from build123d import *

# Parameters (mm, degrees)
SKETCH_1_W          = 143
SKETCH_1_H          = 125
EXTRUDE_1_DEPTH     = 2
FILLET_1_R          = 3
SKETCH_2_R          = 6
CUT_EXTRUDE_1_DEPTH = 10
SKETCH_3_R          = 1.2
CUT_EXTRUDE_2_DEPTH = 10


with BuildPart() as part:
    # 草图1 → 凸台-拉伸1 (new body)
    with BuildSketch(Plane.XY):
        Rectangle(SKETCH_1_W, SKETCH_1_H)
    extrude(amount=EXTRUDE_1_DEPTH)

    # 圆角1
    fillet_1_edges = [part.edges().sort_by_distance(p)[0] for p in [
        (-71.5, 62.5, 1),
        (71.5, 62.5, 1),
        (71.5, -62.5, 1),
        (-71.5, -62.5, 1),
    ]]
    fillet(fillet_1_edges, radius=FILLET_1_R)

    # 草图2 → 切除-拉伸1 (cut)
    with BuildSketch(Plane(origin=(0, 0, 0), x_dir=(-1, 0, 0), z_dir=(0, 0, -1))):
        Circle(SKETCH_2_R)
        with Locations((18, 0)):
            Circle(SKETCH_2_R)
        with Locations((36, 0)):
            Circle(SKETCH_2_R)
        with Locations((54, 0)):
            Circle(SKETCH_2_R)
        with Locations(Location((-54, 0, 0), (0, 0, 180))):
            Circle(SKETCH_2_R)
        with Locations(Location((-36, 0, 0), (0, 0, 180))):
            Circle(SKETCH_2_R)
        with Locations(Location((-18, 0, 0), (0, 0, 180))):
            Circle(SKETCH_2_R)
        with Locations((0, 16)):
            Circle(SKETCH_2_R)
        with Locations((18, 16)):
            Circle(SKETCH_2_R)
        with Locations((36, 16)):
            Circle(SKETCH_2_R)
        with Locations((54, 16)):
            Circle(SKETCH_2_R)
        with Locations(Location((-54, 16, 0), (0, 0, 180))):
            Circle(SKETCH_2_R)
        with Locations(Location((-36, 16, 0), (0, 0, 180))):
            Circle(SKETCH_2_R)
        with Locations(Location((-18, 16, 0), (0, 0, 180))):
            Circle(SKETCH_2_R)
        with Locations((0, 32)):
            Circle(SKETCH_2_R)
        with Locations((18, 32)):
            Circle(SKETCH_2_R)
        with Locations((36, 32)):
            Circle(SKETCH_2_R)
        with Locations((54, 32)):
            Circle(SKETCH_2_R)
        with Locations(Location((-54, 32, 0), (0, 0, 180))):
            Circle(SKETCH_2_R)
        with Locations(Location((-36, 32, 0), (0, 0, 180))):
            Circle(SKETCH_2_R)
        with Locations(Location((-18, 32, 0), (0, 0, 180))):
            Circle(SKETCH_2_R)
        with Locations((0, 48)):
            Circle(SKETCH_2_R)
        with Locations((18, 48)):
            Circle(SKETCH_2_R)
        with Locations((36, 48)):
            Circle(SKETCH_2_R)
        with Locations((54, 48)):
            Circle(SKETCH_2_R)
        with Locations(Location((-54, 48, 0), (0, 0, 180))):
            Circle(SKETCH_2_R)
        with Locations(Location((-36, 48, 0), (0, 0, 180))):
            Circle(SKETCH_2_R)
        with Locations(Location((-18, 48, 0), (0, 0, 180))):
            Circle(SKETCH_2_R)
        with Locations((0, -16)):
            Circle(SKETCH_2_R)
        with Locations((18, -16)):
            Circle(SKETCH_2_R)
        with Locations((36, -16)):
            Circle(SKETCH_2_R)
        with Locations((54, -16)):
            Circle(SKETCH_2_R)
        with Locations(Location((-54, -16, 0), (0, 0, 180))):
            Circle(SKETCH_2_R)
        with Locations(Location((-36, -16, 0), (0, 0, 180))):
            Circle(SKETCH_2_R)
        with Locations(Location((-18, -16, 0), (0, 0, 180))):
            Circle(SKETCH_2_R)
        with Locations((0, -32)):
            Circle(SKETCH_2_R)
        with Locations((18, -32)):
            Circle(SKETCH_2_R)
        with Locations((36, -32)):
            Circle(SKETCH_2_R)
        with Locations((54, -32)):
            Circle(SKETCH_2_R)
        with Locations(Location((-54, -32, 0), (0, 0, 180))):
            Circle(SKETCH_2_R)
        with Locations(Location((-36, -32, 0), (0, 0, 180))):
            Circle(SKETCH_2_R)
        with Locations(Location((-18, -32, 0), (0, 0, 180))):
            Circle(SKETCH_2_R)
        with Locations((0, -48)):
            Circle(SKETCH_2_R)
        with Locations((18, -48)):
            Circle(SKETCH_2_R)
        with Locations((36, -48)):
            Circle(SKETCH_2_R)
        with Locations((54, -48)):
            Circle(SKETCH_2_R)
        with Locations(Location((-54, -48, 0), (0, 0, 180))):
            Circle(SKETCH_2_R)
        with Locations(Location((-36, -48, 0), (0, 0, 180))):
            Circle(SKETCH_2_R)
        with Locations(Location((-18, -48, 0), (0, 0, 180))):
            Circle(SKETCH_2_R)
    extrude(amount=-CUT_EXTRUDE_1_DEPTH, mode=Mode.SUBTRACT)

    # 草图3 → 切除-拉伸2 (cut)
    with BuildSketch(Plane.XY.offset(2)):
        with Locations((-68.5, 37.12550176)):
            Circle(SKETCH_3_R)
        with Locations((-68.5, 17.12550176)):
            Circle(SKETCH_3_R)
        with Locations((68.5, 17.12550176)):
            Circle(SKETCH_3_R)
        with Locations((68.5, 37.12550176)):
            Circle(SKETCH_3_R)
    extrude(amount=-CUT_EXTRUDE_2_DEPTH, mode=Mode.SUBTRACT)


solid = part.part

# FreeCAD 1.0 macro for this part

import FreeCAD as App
import Part
import Sketcher
from FreeCAD import Vector


def edges_at(feature, points):
    """Names of the edges that pass closest to the given points."""
    edges = feature.Shape.Edges
    near = lambda p: min(range(len(edges)), key=lambda i: edges[i].distToShape(Part.Vertex(*p))[0])
    return sorted({f"Edge{near(p) + 1}" for p in points})


def add_polygon(sketch, points):
    """Adds a closed chain of lines whose ends are joined by coincident constraints."""
    first, n = sketch.GeometryCount, len(points)
    for a, b in zip(points, points[1:] + points[:1]):
        sketch.addGeometry(Part.LineSegment(App.Vector(*a, 0), App.Vector(*b, 0)), False)
    for i in range(n):
        sketch.addConstraint(Sketcher.Constraint("Coincident", first + i, 2, first + (i + 1) % n, 1))

doc = App.newDocument("Part")
body = doc.addObject("PartDesign::Body", "Body")

# Sketch on XY plane
sketch1 = body.newObject("Sketcher::SketchObject", "Sketch")
sketch1.AttachmentSupport = (doc.getObject("XY_Plane"), [""])
sketch1.MapMode = "FlatFace"
add_polygon(sketch1, [(-71.5, 62.5), (-71.5, -62.5), (71.5, -62.5), (71.5, 62.5)])  # lines 0-3
sketch1.addConstraint([
    Sketcher.Constraint("Vertical", 0),
    Sketcher.Constraint("Horizontal", 1),
    Sketcher.Constraint("Vertical", 2),
    Sketcher.Constraint("Horizontal", 3),
    Sketcher.Constraint("Symmetric", 0, 2, 2, 2, -1, 1),
    Sketcher.Constraint("DistanceX", 1, 1, 1, 2, 143.0),
    Sketcher.Constraint("DistanceY", 0, 2, 0, 1, 125.0),
])
pad1 = body.newObject("PartDesign::Pad", "Pad")
pad1.Profile = sketch1
pad1.Length = 2
doc.recompute()

fillet = body.newObject("PartDesign::Fillet", "Fillet")
fillet.Base = (pad1, edges_at(pad1, [
    (-71.5, 62.5, 1),
    (71.5, 62.5, 1),
    (71.5, -62.5, 1),
    (-71.5, -62.5, 1),
]))
fillet.Radius = 3

# Sketch on XY plane
sketch2 = body.newObject("Sketcher::SketchObject", "Sketch001")
sketch2.AttachmentSupport = (doc.getObject("XY_Plane"), [""])
sketch2.MapMode = "FlatFace"
sketch2.addGeometry([
    Part.Circle(Vector(0, 0, 0), Vector(0, 0, 1), 6),  # 0
    Part.Circle(Vector(-18, 0, 0), Vector(0, 0, 1), 6),  # 1
    Part.Circle(Vector(-36, 0, 0), Vector(0, 0, 1), 6),  # 2
    Part.Circle(Vector(-54, 0, 0), Vector(0, 0, 1), 6),  # 3
    Part.Circle(Vector(54, 0, 0), Vector(0, 0, 1), 6),  # 4
    Part.Circle(Vector(36, 0, 0), Vector(0, 0, 1), 6),  # 5
    Part.Circle(Vector(18, 0, 0), Vector(0, 0, 1), 6),  # 6
    Part.Circle(Vector(0, 16, 0), Vector(0, 0, 1), 6),  # 7
    Part.Circle(Vector(-18, 16, 0), Vector(0, 0, 1), 6),  # 8
    Part.Circle(Vector(-36, 16, 0), Vector(0, 0, 1), 6),  # 9
    Part.Circle(Vector(-54, 16, 0), Vector(0, 0, 1), 6),  # 10
    Part.Circle(Vector(54, 16, 0), Vector(0, 0, 1), 6),  # 11
    Part.Circle(Vector(36, 16, 0), Vector(0, 0, 1), 6),  # 12
    Part.Circle(Vector(18, 16, 0), Vector(0, 0, 1), 6),  # 13
    Part.Circle(Vector(0, 32, 0), Vector(0, 0, 1), 6),  # 14
    Part.Circle(Vector(-18, 32, 0), Vector(0, 0, 1), 6),  # 15
    Part.Circle(Vector(-36, 32, 0), Vector(0, 0, 1), 6),  # 16
    Part.Circle(Vector(-54, 32, 0), Vector(0, 0, 1), 6),  # 17
    Part.Circle(Vector(54, 32, 0), Vector(0, 0, 1), 6),  # 18
    Part.Circle(Vector(36, 32, 0), Vector(0, 0, 1), 6),  # 19
    Part.Circle(Vector(18, 32, 0), Vector(0, 0, 1), 6),  # 20
    Part.Circle(Vector(0, 48, 0), Vector(0, 0, 1), 6),  # 21
    Part.Circle(Vector(-18, 48, 0), Vector(0, 0, 1), 6),  # 22
    Part.Circle(Vector(-36, 48, 0), Vector(0, 0, 1), 6),  # 23
    Part.Circle(Vector(-54, 48, 0), Vector(0, 0, 1), 6),  # 24
    Part.Circle(Vector(54, 48, 0), Vector(0, 0, 1), 6),  # 25
    Part.Circle(Vector(36, 48, 0), Vector(0, 0, 1), 6),  # 26
    Part.Circle(Vector(18, 48, 0), Vector(0, 0, 1), 6),  # 27
    Part.Circle(Vector(0, -16, 0), Vector(0, 0, 1), 6),  # 28
    Part.Circle(Vector(-18, -16, 0), Vector(0, 0, 1), 6),  # 29
    Part.Circle(Vector(-36, -16, 0), Vector(0, 0, 1), 6),  # 30
    Part.Circle(Vector(-54, -16, 0), Vector(0, 0, 1), 6),  # 31
    Part.Circle(Vector(54, -16, 0), Vector(0, 0, 1), 6),  # 32
    Part.Circle(Vector(36, -16, 0), Vector(0, 0, 1), 6),  # 33
    Part.Circle(Vector(18, -16, 0), Vector(0, 0, 1), 6),  # 34
    Part.Circle(Vector(0, -32, 0), Vector(0, 0, 1), 6),  # 35
    Part.Circle(Vector(-18, -32, 0), Vector(0, 0, 1), 6),  # 36
    Part.Circle(Vector(-36, -32, 0), Vector(0, 0, 1), 6),  # 37
    Part.Circle(Vector(-54, -32, 0), Vector(0, 0, 1), 6),  # 38
    Part.Circle(Vector(54, -32, 0), Vector(0, 0, 1), 6),  # 39
    Part.Circle(Vector(36, -32, 0), Vector(0, 0, 1), 6),  # 40
    Part.Circle(Vector(18, -32, 0), Vector(0, 0, 1), 6),  # 41
    Part.Circle(Vector(0, -48, 0), Vector(0, 0, 1), 6),  # 42
    Part.Circle(Vector(-18, -48, 0), Vector(0, 0, 1), 6),  # 43
    Part.Circle(Vector(-36, -48, 0), Vector(0, 0, 1), 6),  # 44
    Part.Circle(Vector(-54, -48, 0), Vector(0, 0, 1), 6),  # 45
    Part.Circle(Vector(54, -48, 0), Vector(0, 0, 1), 6),  # 46
    Part.Circle(Vector(36, -48, 0), Vector(0, 0, 1), 6),  # 47
    Part.Circle(Vector(18, -48, 0), Vector(0, 0, 1), 6),  # 48
], False)
sketch2.addConstraint([
    Sketcher.Constraint("Coincident", 0, 3, -1, 1),
    Sketcher.Constraint("Equal", 0, 1),
    Sketcher.Constraint("Equal", 1, 2),
    Sketcher.Constraint("Equal", 2, 3),
    Sketcher.Constraint("Equal", 3, 4),
    Sketcher.Constraint("Equal", 4, 5),
    Sketcher.Constraint("Equal", 5, 6),
    Sketcher.Constraint("Equal", 6, 7),
    Sketcher.Constraint("Equal", 7, 8),
    Sketcher.Constraint("Equal", 8, 9),
    Sketcher.Constraint("Equal", 9, 10),
    Sketcher.Constraint("Equal", 10, 11),
    Sketcher.Constraint("Equal", 11, 12),
    Sketcher.Constraint("Equal", 12, 13),
    Sketcher.Constraint("Equal", 13, 14),
    Sketcher.Constraint("Equal", 14, 15),
    Sketcher.Constraint("Equal", 15, 16),
    Sketcher.Constraint("Equal", 16, 17),
    Sketcher.Constraint("Equal", 17, 18),
    Sketcher.Constraint("Equal", 18, 19),
    Sketcher.Constraint("Equal", 19, 20),
    Sketcher.Constraint("Equal", 20, 21),
    Sketcher.Constraint("Equal", 21, 22),
    Sketcher.Constraint("Equal", 22, 23),
    Sketcher.Constraint("Equal", 23, 24),
    Sketcher.Constraint("Equal", 24, 25),
    Sketcher.Constraint("Equal", 25, 26),
    Sketcher.Constraint("Equal", 26, 27),
    Sketcher.Constraint("Equal", 27, 28),
    Sketcher.Constraint("Equal", 28, 29),
    Sketcher.Constraint("Equal", 29, 30),
    Sketcher.Constraint("Equal", 30, 31),
    Sketcher.Constraint("Equal", 31, 32),
    Sketcher.Constraint("Equal", 32, 33),
    Sketcher.Constraint("Equal", 33, 34),
    Sketcher.Constraint("Equal", 34, 35),
    Sketcher.Constraint("Equal", 35, 36),
    Sketcher.Constraint("Equal", 36, 37),
    Sketcher.Constraint("Equal", 37, 38),
    Sketcher.Constraint("Equal", 38, 39),
    Sketcher.Constraint("Equal", 39, 40),
    Sketcher.Constraint("Equal", 40, 41),
    Sketcher.Constraint("Equal", 41, 42),
    Sketcher.Constraint("Equal", 42, 43),
    Sketcher.Constraint("Equal", 43, 44),
    Sketcher.Constraint("Equal", 44, 45),
    Sketcher.Constraint("Equal", 45, 46),
    Sketcher.Constraint("Equal", 46, 47),
    Sketcher.Constraint("Equal", 47, 48),
    Sketcher.Constraint("Symmetric", 3, 3, 4, 3, -1, 1),
    Sketcher.Constraint("Symmetric", 2, 3, 5, 3, -1, 1),
    Sketcher.Constraint("Symmetric", 1, 3, 6, 3, -1, 1),
    Sketcher.Constraint("Symmetric", 7, 3, 28, 3, -1, 1),
    Sketcher.Constraint("Symmetric", 13, 3, 29, 3, -1, 1),
    Sketcher.Constraint("Symmetric", 12, 3, 30, 3, -1, 1),
    Sketcher.Constraint("Symmetric", 11, 3, 31, 3, -1, 1),
    Sketcher.Constraint("Symmetric", 10, 3, 32, 3, -1, 1),
    Sketcher.Constraint("Symmetric", 9, 3, 33, 3, -1, 1),
    Sketcher.Constraint("Symmetric", 8, 3, 34, 3, -1, 1),
    Sketcher.Constraint("Symmetric", 14, 3, 35, 3, -1, 1),
    Sketcher.Constraint("Symmetric", 20, 3, 36, 3, -1, 1),
    Sketcher.Constraint("Symmetric", 19, 3, 37, 3, -1, 1),
    Sketcher.Constraint("Symmetric", 18, 3, 38, 3, -1, 1),
    Sketcher.Constraint("Symmetric", 17, 3, 39, 3, -1, 1),
    Sketcher.Constraint("Symmetric", 16, 3, 40, 3, -1, 1),
    Sketcher.Constraint("Symmetric", 15, 3, 41, 3, -1, 1),
    Sketcher.Constraint("Symmetric", 21, 3, 42, 3, -1, 1),
    Sketcher.Constraint("Symmetric", 27, 3, 43, 3, -1, 1),
    Sketcher.Constraint("Symmetric", 26, 3, 44, 3, -1, 1),
    Sketcher.Constraint("Symmetric", 25, 3, 45, 3, -1, 1),
    Sketcher.Constraint("Symmetric", 24, 3, 46, 3, -1, 1),
    Sketcher.Constraint("Symmetric", 23, 3, 47, 3, -1, 1),
    Sketcher.Constraint("Symmetric", 22, 3, 48, 3, -1, 1),
    Sketcher.Constraint("Symmetric", 10, 3, 11, 3, -2),
    Sketcher.Constraint("Symmetric", 9, 3, 12, 3, -2),
    Sketcher.Constraint("Symmetric", 8, 3, 13, 3, -2),
    Sketcher.Constraint("Symmetric", 17, 3, 18, 3, -2),
    Sketcher.Constraint("Symmetric", 16, 3, 19, 3, -2),
    Sketcher.Constraint("Symmetric", 15, 3, 20, 3, -2),
    Sketcher.Constraint("Symmetric", 24, 3, 25, 3, -2),
    Sketcher.Constraint("Symmetric", 23, 3, 26, 3, -2),
    Sketcher.Constraint("Symmetric", 22, 3, 27, 3, -2),
    Sketcher.Constraint("PointOnObject", 1, 3, -1),
    Sketcher.Constraint("PointOnObject", 2, 3, -1),
    Sketcher.Constraint("PointOnObject", 3, 3, -1),
    Sketcher.Constraint("PointOnObject", 7, 3, -2),
    Sketcher.Constraint("PointOnObject", 14, 3, -2),
    Sketcher.Constraint("PointOnObject", 21, 3, -2),
    Sketcher.Constraint("Horizontal", 7, 3, 8, 3),
    Sketcher.Constraint("Horizontal", 8, 3, 9, 3),
    Sketcher.Constraint("Horizontal", 9, 3, 10, 3),
    Sketcher.Constraint("Horizontal", 14, 3, 15, 3),
    Sketcher.Constraint("Horizontal", 15, 3, 16, 3),
    Sketcher.Constraint("Horizontal", 16, 3, 17, 3),
    Sketcher.Constraint("Horizontal", 21, 3, 22, 3),
    Sketcher.Constraint("Horizontal", 22, 3, 23, 3),
    Sketcher.Constraint("Horizontal", 23, 3, 24, 3),
    Sketcher.Constraint("Vertical", 1, 3, 8, 3),
    Sketcher.Constraint("Vertical", 2, 3, 9, 3),
    Sketcher.Constraint("Vertical", 3, 3, 10, 3),
    Sketcher.Constraint("Vertical", 8, 3, 15, 3),
    Sketcher.Constraint("Vertical", 9, 3, 16, 3),
    Sketcher.Constraint("Vertical", 10, 3, 17, 3),
    Sketcher.Constraint("Vertical", 15, 3, 22, 3),
    Sketcher.Constraint("Vertical", 16, 3, 23, 3),
    Sketcher.Constraint("Vertical", 17, 3, 24, 3),
    Sketcher.Constraint("Diameter", 0, 12.0),
    Sketcher.Constraint("DistanceX", 1, 3, -1, 1, 18.0),
    Sketcher.Constraint("DistanceX", 2, 3, -1, 1, 36.0),
    Sketcher.Constraint("DistanceX", 3, 3, -1, 1, 54.0),
    Sketcher.Constraint("DistanceY", -1, 1, 7, 3, 16.0),
    Sketcher.Constraint("DistanceY", -1, 1, 14, 3, 32.0),
    Sketcher.Constraint("DistanceY", -1, 1, 21, 3, 48.0),
])
pocket1 = body.newObject("PartDesign::Pocket", "Pocket")
pocket1.Profile = sketch2
pocket1.Length = 10
pocket1.Reversed = True

# Sketch on XY plane
sketch3 = body.newObject("Sketcher::SketchObject", "Sketch002")
sketch3.AttachmentSupport = (doc.getObject("XY_Plane"), [""])
sketch3.MapMode = "FlatFace"
sketch3.AttachmentOffset = App.Placement(Vector(0, 0, 2), App.Rotation())
sketch3.addGeometry([
    Part.Circle(Vector(-68.5, 37.125502, 0), Vector(0, 0, 1), 1.2),
    Part.Circle(Vector(-68.5, 17.125502, 0), Vector(0, 0, 1), 1.2),
    Part.Circle(Vector(68.5, 17.125502, 0), Vector(0, 0, 1), 1.2),
    Part.Circle(Vector(68.5, 37.125502, 0), Vector(0, 0, 1), 1.2),
], False)
sketch3.addConstraint([
    Sketcher.Constraint("Equal", 0, 1),
    Sketcher.Constraint("Equal", 1, 2),
    Sketcher.Constraint("Equal", 2, 3),
    Sketcher.Constraint("Symmetric", 1, 3, 2, 3, -2),
    Sketcher.Constraint("Symmetric", 0, 3, 3, 3, -2),
    Sketcher.Constraint("Vertical", 0, 3, 1, 3),
    Sketcher.Constraint("Diameter", 0, 2.4),
    Sketcher.Constraint("DistanceY", 1, 3, 0, 3, 20.0),
    Sketcher.Constraint("DistanceX", 1, 3, 2, 3, 137.0),
    Sketcher.Constraint("DistanceY", -1, 1, 0, 3, 37.125502),
])
pocket2 = body.newObject("PartDesign::Pocket", "Pocket001")
pocket2.Profile = sketch3
pocket2.Length = 10

doc.recompute()
